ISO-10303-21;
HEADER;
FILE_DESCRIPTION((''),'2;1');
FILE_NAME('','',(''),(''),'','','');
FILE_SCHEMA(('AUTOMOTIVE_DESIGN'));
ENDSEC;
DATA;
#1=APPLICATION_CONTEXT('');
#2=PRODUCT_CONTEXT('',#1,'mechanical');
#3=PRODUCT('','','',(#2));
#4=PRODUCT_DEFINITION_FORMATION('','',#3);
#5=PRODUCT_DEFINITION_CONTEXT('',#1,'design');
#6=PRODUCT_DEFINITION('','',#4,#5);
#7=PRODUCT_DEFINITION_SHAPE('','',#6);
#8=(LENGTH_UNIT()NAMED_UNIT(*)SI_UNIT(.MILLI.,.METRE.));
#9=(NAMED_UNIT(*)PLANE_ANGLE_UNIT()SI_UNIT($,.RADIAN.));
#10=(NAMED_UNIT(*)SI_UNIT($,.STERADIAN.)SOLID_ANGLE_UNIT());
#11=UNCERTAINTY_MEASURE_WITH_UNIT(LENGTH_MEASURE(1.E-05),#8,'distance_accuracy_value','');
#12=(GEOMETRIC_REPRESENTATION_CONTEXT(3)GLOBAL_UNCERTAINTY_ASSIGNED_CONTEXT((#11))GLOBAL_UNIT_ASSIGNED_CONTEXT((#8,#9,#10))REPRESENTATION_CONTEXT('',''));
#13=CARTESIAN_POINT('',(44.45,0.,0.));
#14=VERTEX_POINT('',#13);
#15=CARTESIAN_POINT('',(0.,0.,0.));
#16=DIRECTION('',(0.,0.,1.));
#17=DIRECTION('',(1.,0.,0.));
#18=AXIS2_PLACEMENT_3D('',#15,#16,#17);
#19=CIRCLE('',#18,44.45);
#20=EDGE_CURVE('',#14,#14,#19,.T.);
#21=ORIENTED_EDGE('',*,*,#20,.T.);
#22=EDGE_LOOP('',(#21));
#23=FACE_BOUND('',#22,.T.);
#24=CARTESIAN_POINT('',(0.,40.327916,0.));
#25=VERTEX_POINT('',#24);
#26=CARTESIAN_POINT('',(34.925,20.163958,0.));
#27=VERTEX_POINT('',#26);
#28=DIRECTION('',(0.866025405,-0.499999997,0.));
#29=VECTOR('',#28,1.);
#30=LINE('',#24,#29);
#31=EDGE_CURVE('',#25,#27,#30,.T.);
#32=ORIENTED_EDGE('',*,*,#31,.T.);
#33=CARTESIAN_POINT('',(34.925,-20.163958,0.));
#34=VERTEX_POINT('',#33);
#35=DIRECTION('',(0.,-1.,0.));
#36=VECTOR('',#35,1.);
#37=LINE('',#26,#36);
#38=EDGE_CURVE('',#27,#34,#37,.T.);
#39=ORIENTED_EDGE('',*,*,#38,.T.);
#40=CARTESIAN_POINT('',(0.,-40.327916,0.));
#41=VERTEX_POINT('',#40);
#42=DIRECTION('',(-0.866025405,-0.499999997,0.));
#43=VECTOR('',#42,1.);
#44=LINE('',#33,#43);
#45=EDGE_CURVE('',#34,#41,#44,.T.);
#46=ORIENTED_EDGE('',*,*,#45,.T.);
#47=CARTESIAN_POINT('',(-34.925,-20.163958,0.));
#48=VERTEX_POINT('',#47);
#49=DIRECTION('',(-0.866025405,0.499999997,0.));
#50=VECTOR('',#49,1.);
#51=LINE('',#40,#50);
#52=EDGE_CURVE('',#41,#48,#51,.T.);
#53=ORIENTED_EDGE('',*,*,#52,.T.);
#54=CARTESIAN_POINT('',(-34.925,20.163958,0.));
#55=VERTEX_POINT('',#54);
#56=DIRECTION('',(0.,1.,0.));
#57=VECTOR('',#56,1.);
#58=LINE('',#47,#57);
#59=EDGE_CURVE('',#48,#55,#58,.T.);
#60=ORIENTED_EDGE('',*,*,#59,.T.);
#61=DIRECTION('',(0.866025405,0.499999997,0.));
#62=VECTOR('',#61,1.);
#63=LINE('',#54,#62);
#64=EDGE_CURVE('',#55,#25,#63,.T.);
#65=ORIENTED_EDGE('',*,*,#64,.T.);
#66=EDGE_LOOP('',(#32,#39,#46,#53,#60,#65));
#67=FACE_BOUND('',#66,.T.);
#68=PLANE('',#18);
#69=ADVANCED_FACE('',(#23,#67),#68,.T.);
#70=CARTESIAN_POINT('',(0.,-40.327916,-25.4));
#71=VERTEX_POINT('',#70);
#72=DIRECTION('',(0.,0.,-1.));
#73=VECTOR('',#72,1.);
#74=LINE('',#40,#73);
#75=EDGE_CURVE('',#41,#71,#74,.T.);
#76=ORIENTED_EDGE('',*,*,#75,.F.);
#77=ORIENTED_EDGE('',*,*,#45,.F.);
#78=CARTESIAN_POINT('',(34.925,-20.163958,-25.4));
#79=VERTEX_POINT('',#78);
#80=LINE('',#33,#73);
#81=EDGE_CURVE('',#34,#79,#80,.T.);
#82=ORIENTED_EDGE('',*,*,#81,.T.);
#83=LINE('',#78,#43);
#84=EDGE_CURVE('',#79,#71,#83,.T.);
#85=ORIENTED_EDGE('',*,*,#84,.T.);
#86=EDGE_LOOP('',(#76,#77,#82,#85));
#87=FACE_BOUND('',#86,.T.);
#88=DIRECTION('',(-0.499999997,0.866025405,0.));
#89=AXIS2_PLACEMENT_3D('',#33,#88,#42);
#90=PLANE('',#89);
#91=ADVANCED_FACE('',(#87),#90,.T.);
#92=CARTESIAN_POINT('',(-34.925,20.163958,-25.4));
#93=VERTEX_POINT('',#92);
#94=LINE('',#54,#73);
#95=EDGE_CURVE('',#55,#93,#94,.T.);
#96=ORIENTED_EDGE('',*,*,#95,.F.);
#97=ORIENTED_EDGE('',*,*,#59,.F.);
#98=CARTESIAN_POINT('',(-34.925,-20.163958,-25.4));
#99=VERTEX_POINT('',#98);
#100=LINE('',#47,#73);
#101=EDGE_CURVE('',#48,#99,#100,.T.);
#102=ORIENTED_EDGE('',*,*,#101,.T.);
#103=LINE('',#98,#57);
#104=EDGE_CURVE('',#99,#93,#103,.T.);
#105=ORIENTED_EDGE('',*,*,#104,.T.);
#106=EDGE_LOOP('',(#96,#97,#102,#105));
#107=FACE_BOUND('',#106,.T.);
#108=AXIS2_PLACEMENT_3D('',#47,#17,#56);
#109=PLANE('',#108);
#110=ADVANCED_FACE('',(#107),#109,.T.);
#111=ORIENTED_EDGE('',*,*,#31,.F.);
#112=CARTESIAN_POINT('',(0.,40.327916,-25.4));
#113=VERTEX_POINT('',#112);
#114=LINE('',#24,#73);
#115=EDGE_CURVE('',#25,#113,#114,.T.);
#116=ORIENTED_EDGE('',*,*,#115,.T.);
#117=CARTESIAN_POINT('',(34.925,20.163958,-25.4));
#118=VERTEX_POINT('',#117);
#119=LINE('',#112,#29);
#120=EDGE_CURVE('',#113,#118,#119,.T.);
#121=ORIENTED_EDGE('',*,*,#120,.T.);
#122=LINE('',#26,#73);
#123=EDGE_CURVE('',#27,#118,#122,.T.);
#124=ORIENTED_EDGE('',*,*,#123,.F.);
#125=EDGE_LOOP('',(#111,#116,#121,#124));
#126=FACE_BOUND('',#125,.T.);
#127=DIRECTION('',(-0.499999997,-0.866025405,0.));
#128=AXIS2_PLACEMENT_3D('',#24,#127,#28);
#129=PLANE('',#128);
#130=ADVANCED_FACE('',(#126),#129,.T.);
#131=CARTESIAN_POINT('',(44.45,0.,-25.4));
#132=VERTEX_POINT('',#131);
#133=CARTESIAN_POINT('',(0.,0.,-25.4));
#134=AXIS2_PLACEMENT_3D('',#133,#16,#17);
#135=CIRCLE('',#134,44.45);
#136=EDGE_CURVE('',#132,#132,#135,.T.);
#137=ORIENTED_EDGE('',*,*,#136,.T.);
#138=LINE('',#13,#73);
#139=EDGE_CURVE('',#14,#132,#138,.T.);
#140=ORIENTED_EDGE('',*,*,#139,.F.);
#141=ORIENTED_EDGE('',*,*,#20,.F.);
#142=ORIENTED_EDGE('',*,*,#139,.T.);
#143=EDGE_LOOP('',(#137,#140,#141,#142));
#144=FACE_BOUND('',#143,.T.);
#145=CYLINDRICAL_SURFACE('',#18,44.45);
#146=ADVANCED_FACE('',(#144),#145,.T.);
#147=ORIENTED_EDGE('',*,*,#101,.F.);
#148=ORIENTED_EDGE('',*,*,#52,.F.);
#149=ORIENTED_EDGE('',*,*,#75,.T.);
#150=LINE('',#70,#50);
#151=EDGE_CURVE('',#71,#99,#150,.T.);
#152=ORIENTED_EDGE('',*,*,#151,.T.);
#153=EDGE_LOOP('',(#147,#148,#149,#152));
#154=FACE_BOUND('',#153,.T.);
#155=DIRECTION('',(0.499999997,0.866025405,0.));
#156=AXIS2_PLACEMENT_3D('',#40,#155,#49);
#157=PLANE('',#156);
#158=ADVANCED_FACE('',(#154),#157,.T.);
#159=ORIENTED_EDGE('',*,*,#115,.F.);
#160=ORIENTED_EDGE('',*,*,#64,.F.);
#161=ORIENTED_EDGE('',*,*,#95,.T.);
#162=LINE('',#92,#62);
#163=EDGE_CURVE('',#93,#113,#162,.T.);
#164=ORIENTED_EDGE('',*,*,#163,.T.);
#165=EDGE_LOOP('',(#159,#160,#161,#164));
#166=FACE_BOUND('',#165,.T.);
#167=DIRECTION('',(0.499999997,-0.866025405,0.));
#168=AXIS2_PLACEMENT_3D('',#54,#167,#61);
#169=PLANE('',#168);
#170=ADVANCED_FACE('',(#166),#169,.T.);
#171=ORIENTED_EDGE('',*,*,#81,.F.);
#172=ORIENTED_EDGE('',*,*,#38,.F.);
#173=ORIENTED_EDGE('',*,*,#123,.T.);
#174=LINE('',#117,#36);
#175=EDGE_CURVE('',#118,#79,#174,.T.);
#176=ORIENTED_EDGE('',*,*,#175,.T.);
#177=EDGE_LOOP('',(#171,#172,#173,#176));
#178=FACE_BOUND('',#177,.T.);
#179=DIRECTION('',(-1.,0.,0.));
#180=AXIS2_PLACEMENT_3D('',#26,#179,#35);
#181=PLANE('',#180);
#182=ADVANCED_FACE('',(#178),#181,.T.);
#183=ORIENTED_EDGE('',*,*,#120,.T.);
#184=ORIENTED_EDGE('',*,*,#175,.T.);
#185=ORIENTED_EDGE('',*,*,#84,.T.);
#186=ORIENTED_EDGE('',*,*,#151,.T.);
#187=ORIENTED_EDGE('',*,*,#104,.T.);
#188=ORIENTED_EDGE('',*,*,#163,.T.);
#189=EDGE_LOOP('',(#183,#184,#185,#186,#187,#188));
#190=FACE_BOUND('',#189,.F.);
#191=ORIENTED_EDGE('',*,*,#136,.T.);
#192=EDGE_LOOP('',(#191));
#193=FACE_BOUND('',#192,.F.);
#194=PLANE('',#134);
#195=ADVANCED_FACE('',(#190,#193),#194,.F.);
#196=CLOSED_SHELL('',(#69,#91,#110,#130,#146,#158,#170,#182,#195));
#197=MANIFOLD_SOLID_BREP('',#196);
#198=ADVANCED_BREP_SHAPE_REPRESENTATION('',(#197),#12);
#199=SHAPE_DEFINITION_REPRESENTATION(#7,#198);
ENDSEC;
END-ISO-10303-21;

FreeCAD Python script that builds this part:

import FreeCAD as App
import Part
import Sketcher
Q = App.Units.Quantity


def add_polygon(sketch, points):
    """Adds a closed chain of lines whose ends are joined by coincident constraints."""
    first, n = sketch.GeometryCount, len(points)
    for a, b in zip(points, points[1:] + points[:1]):
        sketch.addGeometry(Part.LineSegment(App.Vector(*a, 0), App.Vector(*b, 0)), False)
    for i in range(n):
        sketch.addConstraint(Sketcher.Constraint("Coincident", first + i, 2, first + (i + 1) % n, 1))

doc = App.newDocument("Part")
body = doc.addObject("PartDesign::Body", "Body")

sketch1 = body.newObject("Sketcher::SketchObject", "Sketch")
sketch1.AttachmentSupport = (doc.getObject("XY_Plane"), [""])
sketch1.MapMode = "FlatFace"
sketch1.addGeometry(Part.Circle(App.Vector(0, 0, 0), App.Vector(0, 0, 1), 44), False)
add_polygon(sketch1, [(-35, 20), (0, 40), (35, 20), (35, -20), (0, -40), (-35, -20)])
sketch1.addConstraint([
    Sketcher.Constraint("Vertical", 3),
    Sketcher.Constraint("Vertical", 6),
    Sketcher.Constraint("Coincident", 0, 3, -1, 1),
    Sketcher.Constraint("Symmetric", 1, 2, 4, 2, -1, 1),
    Sketcher.Constraint("Symmetric", 2, 2, 5, 2, -1, 1),
    Sketcher.Constraint("PointOnObject", 1, 2, -2),
    Sketcher.Constraint("Parallel", 1, 4),
    Sketcher.Constraint("Horizontal", 3, 2, 5, 2),
    Sketcher.Constraint("Diameter", 0, Q("3.5 in")),
    Sketcher.Constraint("Angle", 1, Q("30 deg")),
    Sketcher.Constraint("DistanceX", 5, 2, 3, 2, Q("2.75 in")),
    Sketcher.Constraint("DistanceY", 3, 2, 3, 1, 40.327916),
])
pad1 = body.newObject("PartDesign::Pad", "Pad")
pad1.Profile = sketch1
pad1.Length = Q("1 in")
pad1.Reversed = True

doc.recompute()
